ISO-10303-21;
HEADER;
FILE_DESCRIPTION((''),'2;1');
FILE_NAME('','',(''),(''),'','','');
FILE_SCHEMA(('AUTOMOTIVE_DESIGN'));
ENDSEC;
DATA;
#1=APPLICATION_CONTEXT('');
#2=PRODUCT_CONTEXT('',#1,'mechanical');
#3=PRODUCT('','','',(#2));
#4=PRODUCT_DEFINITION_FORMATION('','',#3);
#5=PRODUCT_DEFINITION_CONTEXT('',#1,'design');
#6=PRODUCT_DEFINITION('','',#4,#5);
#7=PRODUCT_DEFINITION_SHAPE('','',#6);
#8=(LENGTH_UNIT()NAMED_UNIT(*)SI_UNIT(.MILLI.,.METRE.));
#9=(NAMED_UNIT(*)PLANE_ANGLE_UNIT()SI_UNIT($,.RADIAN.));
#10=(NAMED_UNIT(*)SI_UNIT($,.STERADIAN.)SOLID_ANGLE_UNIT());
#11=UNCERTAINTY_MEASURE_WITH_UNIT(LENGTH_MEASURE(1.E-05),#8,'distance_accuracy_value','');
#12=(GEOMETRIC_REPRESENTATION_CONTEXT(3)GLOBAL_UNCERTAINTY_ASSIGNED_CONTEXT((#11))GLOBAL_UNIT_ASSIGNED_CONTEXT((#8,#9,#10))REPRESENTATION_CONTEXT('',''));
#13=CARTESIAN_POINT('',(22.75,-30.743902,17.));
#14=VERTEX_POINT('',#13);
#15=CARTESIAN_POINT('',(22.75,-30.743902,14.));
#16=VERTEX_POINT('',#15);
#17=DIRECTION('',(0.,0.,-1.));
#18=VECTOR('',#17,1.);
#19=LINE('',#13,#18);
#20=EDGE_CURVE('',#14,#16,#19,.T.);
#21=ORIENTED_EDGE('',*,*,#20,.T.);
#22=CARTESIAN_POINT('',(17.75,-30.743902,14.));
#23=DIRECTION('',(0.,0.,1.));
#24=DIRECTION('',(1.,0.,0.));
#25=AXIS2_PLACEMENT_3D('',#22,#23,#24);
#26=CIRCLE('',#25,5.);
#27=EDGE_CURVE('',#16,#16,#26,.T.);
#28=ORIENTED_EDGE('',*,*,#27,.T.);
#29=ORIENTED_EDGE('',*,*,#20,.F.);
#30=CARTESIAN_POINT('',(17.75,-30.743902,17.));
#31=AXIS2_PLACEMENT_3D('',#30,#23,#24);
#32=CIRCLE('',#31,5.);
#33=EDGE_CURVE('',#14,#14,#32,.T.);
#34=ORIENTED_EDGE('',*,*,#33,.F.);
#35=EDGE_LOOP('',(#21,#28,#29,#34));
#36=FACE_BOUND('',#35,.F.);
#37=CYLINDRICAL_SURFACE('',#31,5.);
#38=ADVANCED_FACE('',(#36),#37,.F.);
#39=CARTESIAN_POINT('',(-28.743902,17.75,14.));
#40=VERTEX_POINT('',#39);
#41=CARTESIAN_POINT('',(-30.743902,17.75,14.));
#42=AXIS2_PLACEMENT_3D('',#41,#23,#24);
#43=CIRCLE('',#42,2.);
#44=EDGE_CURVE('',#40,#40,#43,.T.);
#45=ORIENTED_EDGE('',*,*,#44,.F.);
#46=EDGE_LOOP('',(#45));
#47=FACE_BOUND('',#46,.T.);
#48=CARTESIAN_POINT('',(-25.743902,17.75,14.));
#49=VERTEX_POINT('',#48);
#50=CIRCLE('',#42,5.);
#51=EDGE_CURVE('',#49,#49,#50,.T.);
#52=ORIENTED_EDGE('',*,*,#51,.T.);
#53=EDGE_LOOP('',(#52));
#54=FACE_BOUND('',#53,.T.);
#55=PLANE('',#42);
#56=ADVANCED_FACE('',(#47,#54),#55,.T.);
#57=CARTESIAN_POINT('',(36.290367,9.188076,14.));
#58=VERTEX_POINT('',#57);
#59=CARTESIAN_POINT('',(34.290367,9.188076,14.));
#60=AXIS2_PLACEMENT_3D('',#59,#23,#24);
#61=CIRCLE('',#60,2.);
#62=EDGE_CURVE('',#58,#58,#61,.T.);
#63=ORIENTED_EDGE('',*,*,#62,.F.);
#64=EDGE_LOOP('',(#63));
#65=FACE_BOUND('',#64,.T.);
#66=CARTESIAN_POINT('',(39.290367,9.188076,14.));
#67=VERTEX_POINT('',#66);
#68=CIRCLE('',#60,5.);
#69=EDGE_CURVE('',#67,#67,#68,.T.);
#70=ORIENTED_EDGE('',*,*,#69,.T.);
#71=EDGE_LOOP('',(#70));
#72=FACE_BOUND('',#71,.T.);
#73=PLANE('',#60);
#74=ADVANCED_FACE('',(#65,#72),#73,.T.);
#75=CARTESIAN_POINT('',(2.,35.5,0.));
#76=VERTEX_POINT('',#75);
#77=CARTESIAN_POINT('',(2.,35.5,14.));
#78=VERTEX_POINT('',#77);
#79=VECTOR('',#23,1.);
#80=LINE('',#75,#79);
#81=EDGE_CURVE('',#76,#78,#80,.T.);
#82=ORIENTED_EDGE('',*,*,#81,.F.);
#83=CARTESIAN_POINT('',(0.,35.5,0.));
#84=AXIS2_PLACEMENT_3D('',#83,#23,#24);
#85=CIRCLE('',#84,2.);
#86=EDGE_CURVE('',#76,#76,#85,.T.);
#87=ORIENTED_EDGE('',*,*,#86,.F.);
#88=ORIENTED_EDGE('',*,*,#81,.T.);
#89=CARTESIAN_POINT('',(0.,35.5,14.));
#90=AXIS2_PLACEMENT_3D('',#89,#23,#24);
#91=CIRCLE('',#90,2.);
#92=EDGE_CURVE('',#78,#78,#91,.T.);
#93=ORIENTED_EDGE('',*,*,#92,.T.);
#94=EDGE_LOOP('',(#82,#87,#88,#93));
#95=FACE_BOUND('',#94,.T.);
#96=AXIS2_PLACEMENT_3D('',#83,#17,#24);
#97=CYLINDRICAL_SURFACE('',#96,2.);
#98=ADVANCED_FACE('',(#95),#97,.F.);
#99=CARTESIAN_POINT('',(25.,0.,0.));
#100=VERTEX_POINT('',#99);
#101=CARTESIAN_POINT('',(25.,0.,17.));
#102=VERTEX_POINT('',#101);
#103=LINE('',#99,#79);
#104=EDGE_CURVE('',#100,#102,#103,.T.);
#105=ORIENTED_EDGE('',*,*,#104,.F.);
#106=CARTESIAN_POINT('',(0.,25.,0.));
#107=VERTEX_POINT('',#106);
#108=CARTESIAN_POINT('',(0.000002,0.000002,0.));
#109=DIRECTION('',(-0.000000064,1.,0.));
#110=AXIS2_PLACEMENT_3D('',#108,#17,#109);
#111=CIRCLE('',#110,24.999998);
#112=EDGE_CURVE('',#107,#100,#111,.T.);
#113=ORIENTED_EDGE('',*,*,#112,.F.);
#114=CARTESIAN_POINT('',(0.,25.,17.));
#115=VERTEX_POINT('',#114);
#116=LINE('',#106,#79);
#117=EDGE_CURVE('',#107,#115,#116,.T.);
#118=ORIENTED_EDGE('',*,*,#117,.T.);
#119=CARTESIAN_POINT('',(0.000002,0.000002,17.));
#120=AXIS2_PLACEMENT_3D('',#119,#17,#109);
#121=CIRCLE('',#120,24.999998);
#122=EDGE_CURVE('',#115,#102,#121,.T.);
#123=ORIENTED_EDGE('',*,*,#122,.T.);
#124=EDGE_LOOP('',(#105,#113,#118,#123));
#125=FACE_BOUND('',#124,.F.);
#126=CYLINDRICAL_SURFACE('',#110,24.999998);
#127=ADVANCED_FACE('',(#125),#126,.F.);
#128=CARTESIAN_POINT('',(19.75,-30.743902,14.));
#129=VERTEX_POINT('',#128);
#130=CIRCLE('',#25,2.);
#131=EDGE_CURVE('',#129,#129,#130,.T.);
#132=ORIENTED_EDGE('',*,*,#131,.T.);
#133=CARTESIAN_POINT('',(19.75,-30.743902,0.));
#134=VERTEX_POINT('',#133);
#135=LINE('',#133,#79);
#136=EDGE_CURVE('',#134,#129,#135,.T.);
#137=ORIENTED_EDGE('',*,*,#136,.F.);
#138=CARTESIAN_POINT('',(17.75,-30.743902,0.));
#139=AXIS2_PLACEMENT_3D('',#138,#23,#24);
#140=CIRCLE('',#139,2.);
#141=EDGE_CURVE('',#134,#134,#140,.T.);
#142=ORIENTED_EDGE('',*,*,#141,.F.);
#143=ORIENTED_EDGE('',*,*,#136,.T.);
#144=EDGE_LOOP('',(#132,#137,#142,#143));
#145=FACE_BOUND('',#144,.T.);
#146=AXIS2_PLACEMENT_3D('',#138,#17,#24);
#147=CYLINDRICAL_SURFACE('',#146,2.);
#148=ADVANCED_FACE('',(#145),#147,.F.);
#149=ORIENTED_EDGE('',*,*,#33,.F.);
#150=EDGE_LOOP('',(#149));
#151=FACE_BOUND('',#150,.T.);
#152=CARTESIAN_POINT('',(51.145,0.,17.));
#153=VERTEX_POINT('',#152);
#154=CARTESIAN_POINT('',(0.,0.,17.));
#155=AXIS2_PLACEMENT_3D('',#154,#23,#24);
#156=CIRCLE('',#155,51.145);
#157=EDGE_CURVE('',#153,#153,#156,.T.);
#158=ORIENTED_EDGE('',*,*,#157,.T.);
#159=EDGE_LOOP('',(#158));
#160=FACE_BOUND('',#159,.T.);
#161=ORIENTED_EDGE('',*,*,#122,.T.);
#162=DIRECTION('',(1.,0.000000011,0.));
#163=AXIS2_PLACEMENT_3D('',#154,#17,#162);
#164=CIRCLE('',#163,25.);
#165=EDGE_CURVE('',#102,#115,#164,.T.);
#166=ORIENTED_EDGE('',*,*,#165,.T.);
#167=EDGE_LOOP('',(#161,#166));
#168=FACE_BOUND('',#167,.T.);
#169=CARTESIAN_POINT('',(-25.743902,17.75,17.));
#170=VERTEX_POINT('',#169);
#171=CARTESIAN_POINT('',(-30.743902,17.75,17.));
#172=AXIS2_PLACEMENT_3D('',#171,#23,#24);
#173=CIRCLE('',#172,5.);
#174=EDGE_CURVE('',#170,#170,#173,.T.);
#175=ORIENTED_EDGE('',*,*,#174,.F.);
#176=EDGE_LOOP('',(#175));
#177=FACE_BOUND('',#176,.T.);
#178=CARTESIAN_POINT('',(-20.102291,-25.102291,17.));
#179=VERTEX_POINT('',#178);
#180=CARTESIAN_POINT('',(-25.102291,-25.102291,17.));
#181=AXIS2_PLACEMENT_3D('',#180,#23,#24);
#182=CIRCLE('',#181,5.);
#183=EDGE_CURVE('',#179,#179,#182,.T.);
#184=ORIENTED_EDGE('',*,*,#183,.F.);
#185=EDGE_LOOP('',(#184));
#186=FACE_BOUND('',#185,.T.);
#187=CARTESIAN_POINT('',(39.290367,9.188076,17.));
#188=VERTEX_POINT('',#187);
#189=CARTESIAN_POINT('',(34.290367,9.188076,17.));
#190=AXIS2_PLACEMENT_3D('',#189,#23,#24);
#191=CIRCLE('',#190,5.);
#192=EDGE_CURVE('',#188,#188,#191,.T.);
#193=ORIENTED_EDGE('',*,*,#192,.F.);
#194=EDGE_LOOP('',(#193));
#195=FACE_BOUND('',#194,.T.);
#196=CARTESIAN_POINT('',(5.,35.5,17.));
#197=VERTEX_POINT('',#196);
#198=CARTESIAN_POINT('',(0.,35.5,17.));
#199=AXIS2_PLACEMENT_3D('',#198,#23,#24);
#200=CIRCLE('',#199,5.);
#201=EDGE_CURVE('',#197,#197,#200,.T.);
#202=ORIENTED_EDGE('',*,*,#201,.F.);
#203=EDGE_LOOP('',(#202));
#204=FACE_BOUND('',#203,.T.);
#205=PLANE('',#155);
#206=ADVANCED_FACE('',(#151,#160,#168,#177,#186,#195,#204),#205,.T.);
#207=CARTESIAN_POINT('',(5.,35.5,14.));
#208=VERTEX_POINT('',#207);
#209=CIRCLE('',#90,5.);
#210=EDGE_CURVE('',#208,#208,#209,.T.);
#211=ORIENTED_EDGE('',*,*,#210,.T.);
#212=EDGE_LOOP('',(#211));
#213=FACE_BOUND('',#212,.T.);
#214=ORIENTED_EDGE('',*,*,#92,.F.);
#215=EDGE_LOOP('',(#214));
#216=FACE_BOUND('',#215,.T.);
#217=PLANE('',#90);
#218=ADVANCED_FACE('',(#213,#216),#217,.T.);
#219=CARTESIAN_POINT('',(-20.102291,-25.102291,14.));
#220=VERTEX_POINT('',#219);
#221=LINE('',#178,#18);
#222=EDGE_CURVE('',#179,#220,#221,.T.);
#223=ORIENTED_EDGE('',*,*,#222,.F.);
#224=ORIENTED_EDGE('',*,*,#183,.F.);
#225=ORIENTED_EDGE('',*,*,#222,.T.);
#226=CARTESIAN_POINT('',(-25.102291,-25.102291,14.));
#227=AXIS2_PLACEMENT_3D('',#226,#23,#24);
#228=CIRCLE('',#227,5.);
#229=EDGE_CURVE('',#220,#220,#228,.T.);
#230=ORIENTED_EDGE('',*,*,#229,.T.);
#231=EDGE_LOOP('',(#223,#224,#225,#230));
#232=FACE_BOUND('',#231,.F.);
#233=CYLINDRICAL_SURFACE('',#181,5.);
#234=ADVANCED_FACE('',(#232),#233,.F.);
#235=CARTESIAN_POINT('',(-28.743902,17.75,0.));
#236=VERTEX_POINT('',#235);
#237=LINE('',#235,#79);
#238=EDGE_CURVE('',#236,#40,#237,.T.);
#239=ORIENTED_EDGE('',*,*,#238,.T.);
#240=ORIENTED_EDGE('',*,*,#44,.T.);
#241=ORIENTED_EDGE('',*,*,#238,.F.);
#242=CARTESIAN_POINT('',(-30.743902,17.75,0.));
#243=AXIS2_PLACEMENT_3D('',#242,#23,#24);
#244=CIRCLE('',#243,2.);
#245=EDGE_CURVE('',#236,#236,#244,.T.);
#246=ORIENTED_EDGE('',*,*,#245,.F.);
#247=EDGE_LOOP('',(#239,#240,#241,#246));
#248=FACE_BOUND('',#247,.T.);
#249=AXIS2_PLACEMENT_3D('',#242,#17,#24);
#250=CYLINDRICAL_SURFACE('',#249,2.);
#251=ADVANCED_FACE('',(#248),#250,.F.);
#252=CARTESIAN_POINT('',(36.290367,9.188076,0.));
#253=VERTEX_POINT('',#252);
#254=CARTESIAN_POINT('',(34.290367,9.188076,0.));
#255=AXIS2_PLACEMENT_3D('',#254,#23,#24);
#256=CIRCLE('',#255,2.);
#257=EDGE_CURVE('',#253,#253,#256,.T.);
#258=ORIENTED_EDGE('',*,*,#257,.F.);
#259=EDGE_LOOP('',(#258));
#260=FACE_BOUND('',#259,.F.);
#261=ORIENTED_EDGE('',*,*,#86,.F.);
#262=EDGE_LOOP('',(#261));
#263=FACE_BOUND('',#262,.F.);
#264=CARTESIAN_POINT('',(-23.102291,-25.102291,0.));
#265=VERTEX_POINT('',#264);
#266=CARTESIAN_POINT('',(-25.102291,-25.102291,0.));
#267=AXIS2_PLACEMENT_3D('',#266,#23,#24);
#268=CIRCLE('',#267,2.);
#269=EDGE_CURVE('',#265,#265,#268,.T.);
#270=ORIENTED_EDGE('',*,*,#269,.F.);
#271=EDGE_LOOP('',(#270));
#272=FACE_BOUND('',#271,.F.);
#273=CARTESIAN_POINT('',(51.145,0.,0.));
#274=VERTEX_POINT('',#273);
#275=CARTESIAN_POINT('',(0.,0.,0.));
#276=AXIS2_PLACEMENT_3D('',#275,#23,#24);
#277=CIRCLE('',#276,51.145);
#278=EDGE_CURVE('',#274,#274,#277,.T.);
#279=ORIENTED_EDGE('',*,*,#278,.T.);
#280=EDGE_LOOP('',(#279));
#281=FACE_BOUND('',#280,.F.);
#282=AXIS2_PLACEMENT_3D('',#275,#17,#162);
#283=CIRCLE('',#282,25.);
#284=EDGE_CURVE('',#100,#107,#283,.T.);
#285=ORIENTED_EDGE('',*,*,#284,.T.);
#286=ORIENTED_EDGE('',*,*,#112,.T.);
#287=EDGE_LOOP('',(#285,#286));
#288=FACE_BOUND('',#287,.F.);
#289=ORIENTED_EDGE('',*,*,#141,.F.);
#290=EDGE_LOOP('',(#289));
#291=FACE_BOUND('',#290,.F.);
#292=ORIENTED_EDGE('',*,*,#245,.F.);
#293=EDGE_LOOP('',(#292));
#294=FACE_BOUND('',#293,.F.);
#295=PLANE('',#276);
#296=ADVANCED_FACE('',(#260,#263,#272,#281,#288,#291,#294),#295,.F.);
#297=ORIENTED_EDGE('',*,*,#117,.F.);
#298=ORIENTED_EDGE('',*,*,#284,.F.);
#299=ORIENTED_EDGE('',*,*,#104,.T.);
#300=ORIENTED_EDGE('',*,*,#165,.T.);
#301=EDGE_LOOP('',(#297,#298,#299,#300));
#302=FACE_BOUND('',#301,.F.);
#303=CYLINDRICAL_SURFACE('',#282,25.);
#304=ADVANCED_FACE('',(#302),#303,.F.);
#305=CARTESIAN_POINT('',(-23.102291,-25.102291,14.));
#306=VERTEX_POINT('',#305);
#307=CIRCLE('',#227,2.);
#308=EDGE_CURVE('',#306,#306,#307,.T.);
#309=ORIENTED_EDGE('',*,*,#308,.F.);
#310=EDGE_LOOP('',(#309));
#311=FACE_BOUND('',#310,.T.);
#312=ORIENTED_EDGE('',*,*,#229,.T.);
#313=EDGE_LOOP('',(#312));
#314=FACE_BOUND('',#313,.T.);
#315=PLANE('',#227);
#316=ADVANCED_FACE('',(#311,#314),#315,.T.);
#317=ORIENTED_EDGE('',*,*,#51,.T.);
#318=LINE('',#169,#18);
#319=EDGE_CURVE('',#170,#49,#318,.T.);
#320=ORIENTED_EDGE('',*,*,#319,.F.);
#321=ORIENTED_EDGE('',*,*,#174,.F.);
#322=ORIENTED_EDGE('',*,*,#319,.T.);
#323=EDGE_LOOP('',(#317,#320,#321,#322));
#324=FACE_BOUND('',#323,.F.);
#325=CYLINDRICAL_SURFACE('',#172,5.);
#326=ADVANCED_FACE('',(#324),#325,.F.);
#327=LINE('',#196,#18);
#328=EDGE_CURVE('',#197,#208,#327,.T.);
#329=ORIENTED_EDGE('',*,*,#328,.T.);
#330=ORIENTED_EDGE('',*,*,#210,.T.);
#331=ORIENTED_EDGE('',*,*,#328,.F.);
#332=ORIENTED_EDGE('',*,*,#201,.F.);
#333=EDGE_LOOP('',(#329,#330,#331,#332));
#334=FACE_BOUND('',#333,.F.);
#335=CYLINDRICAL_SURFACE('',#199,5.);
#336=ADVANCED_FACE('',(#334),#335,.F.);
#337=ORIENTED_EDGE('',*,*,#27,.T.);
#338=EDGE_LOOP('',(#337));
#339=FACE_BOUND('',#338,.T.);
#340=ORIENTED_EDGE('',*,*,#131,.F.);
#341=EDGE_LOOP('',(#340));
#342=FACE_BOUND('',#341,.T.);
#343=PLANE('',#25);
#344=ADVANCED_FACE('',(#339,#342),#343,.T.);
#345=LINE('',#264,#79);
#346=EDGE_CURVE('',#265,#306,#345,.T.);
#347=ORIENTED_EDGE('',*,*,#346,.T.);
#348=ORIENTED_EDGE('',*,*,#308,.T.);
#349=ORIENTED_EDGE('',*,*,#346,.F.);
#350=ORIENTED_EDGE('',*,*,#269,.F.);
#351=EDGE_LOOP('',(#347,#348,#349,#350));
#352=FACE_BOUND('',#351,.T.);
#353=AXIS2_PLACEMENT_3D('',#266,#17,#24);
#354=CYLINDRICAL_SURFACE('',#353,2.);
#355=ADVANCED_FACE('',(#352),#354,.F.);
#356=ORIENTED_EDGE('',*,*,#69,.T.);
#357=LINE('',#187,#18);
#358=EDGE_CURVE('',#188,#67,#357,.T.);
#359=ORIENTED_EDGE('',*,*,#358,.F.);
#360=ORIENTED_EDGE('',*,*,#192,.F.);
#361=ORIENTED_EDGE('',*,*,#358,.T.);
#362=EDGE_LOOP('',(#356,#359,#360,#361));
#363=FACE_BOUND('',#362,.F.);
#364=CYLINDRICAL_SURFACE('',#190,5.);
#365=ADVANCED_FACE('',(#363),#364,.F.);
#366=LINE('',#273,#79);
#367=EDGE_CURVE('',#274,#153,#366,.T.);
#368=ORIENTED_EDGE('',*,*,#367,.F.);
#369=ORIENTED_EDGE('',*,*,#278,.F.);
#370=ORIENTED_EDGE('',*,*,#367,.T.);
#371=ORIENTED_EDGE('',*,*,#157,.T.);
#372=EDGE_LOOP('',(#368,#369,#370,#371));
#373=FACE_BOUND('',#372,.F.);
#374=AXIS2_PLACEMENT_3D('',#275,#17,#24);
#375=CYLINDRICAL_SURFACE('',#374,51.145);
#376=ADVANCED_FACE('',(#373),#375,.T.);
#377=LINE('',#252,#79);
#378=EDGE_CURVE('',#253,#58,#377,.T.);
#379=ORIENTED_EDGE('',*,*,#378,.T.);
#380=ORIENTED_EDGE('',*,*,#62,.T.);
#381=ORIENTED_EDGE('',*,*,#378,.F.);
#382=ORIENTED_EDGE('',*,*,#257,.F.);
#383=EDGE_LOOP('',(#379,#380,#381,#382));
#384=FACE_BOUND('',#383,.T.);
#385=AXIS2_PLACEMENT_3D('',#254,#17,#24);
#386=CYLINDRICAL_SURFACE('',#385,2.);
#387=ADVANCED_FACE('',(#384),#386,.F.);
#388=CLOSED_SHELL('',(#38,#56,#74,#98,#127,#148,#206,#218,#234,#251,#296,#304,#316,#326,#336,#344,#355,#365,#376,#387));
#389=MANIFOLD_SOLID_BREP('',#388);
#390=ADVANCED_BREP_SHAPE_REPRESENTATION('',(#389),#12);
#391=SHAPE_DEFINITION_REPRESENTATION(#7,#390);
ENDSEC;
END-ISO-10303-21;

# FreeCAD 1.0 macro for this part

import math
import FreeCAD as App
import Part
import Sketcher
from FreeCAD import Vector
Q = App.Units.Quantity

doc = App.newDocument("Part")
body = doc.addObject("PartDesign::Body", "Body")

# Sketch on XY plane
sketch1 = body.newObject("Sketcher::SketchObject", "Sketch")
sketch1.AttachmentSupport = (doc.getObject("XY_Plane"), [""])
sketch1.MapMode = "FlatFace"
sketch1.addGeometry([
    Part.Circle(Vector(0, 0, 0), Vector(0, 0, 1), 51.1),  # 0
    Part.Circle(Vector(-25.1, -25.1, 0), Vector(0, 0, 1), 2),  # 1
    Part.ArcOfCircle(Part.Circle(Vector(0, 0, 0), Vector(0, 0, 1), 25), math.radians(90), math.radians(360)),  # 2
    Part.ArcOfCircle(Part.Circle(Vector(0, 0, 0), Vector(0, 0, 1), 25), math.radians(0), math.radians(90)),  # 3
    Part.Circle(Vector(17.8, -30.7, 0), Vector(0, 0, 1), 2),  # 4
    Part.Circle(Vector(-30.7, 17.8, 0), Vector(0, 0, 1), 2),  # 5
    Part.Circle(Vector(0, 35.5, 0), Vector(0, 0, 1), 2),  # 6
    Part.Circle(Vector(34.3, 9.2, 0), Vector(0, 0, 1), 2),  # 7
], False)
sketch1.addConstraint([
    Sketcher.Constraint("Tangent", 2, 1, 3, 2),
    Sketcher.Constraint("Coincident", 3, 1, 2, 2),
    Sketcher.Constraint("Coincident", 0, 3, -1, 1),
    Sketcher.Constraint("Coincident", 2, 3, -1, 1),
    Sketcher.Constraint("Equal", 1, 4),
    Sketcher.Constraint("Equal", 4, 5),
    Sketcher.Constraint("Equal", 5, 6),
    Sketcher.Constraint("Equal", 6, 7),
    Sketcher.Constraint("PointOnObject", 6, 3, -2),
    Sketcher.Constraint("PointOnObject", 2, 1, -2),
    Sketcher.Constraint("PointOnObject", 3, 1, -1),
    Sketcher.Constraint("Diameter", 1, Q("4 mm")),
    Sketcher.Constraint("Radius", 2, Q("25 mm")),
    Sketcher.Constraint("Diameter", 0, Q("102.29 mm")),
    Sketcher.Constraint("DistanceY", -1, 1, 6, 3, Q("35.5 mm")),
    Sketcher.Constraint("DistanceX", -1, 1, 4, 3, Q("17.75 mm")),
    Sketcher.Constraint("DistanceY", -1, 1, 5, 3, Q("17.75 mm")),
    Sketcher.Constraint("DistanceY", 4, 3, -1, 1, Q("30.743902 mm")),
    Sketcher.Constraint("DistanceX", 5, 3, -1, 1, Q("30.743902 mm")),
    Sketcher.Constraint("DistanceX", 1, 3, -1, 1, Q("25.102291 mm")),
    Sketcher.Constraint("DistanceY", 1, 3, -1, 1, Q("25.102291 mm")),
    Sketcher.Constraint("DistanceX", -1, 1, 7, 3, Q("34.290367 mm")),
    Sketcher.Constraint("DistanceY", -1, 1, 7, 3, Q("9.188076 mm")),
])
pad1 = body.newObject("PartDesign::Pad", "Pad")
pad1.Profile = sketch1
pad1.Length = 17

# Sketch on XY plane
sketch2 = body.newObject("Sketcher::SketchObject", "Sketch001")
sketch2.AttachmentSupport = (doc.getObject("XY_Plane"), [""])
sketch2.MapMode = "FlatFace"
sketch2.AttachmentOffset = App.Placement(Vector(0, 0, 17), App.Rotation())
sketch2.addGeometry([
    Part.Circle(Vector(0, 35.5, 0), Vector(0, 0, 1), 5),  # 0
    Part.Circle(Vector(0, 35.5, 0), Vector(0, 0, 1), 2),  # 1
    Part.Circle(Vector(-30.7, 17.8, 0), Vector(0, 0, 1), 5),  # 2
    Part.Circle(Vector(-30.7, 17.8, 0), Vector(0, 0, 1), 2),  # 3
    Part.Circle(Vector(-25.1, -25.1, 0), Vector(0, 0, 1), 5),  # 4
    Part.Circle(Vector(-25.1, -25.1, 0), Vector(0, 0, 1), 2),  # 5
    Part.Circle(Vector(17.8, -30.7, 0), Vector(0, 0, 1), 5),  # 6
    Part.Circle(Vector(17.8, -30.7, 0), Vector(0, 0, 1), 2),  # 7
    Part.Circle(Vector(34.3, 9.2, 0), Vector(0, 0, 1), 5),  # 8
    Part.Circle(Vector(34.3, 9.2, 0), Vector(0, 0, 1), 2),  # 9
], False)
sketch2.addConstraint([
    Sketcher.Constraint("Coincident", 1, 3, 0, 3),
    Sketcher.Constraint("Coincident", 3, 3, 2, 3),
    Sketcher.Constraint("Coincident", 5, 3, 4, 3),
    Sketcher.Constraint("Coincident", 7, 3, 6, 3),
    Sketcher.Constraint("Coincident", 9, 3, 8, 3),
    Sketcher.Constraint("Equal", 0, 2),
    Sketcher.Constraint("Equal", 1, 3),
    Sketcher.Constraint("Equal", 2, 4),
    Sketcher.Constraint("Equal", 3, 5),
    Sketcher.Constraint("Equal", 4, 6),
    Sketcher.Constraint("Equal", 5, 7),
    Sketcher.Constraint("Equal", 6, 8),
    Sketcher.Constraint("Equal", 7, 9),
    Sketcher.Constraint("PointOnObject", 0, 3, -2),
    Sketcher.Constraint("Diameter", 0, Q("10 mm")),
    Sketcher.Constraint("Diameter", 1, Q("4 mm")),
    Sketcher.Constraint("DistanceY", -1, 1, 0, 3, Q("35.5 mm")),
    Sketcher.Constraint("DistanceY", -1, 1, 2, 3, Q("17.75 mm")),
    Sketcher.Constraint("DistanceX", -1, 1, 6, 3, Q("17.75 mm")),
    Sketcher.Constraint("DistanceX", 2, 3, -1, 1, Q("30.743902 mm")),
    Sketcher.Constraint("DistanceY", 6, 3, -1, 1, Q("30.743902 mm")),
    Sketcher.Constraint("DistanceX", 4, 3, -1, 1, Q("25.102291 mm")),
    Sketcher.Constraint("DistanceY", 4, 3, -1, 1, Q("25.102291 mm")),
    Sketcher.Constraint("DistanceX", 2, 3, 8, 3, Q("65.034269 mm")),
    Sketcher.Constraint("DistanceY", -1, 1, 8, 3, Q("9.188076 mm")),
])
pocket1 = body.newObject("PartDesign::Pocket", "Pocket")
pocket1.Profile = sketch2
pocket1.Length = 3

doc.recompute()
